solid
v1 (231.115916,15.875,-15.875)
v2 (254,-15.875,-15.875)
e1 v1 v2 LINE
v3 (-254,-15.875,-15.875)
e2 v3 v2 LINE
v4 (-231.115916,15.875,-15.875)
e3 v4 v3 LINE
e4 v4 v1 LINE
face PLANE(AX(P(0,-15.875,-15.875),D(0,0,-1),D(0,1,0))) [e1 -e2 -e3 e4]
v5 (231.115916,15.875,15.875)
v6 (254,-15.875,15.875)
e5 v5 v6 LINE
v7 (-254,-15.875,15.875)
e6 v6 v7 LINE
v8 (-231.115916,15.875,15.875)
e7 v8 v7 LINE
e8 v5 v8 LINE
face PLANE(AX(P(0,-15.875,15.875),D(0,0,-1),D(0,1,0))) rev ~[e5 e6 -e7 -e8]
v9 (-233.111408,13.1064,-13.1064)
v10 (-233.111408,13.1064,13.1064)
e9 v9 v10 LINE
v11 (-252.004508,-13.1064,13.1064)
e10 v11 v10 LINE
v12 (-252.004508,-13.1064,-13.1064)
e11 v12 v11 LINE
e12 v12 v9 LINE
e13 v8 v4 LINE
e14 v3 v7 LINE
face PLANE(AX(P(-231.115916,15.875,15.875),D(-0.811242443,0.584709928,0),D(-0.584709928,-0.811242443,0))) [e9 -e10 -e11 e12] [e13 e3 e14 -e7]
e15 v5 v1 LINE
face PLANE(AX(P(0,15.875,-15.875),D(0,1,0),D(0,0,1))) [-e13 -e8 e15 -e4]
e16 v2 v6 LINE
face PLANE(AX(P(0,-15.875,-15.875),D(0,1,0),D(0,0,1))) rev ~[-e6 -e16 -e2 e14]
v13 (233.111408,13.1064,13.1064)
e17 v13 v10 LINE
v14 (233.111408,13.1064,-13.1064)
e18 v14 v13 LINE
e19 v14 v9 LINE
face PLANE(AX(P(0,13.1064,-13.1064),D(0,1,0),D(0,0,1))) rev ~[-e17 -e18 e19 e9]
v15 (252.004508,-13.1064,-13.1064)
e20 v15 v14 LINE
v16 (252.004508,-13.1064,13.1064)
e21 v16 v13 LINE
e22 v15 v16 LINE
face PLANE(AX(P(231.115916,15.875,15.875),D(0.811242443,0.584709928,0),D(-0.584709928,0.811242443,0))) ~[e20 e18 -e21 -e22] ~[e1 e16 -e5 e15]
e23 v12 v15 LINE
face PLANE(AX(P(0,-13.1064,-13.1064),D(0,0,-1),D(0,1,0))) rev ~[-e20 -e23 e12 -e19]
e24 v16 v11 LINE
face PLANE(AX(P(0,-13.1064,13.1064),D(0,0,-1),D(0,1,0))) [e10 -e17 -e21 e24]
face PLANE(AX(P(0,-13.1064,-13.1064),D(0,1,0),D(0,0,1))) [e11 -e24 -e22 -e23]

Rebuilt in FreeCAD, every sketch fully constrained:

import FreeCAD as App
import Part
import Sketcher
from FreeCAD import Vector
Q = App.Units.Quantity

doc = App.newDocument("Part")
body = doc.addObject("PartDesign::Body", "Body")

# Sketch on YZ plane
sketch1 = body.newObject("Sketcher::SketchObject", "Sketch")
sketch1.AttachmentSupport = (doc.getObject("YZ_Plane"), [""])
sketch1.MapMode = "FlatFace"
sketch1.addGeometry(Part.LineSegment(Vector(-16, 16, 0), Vector(-16, -16, 0)), False)
sketch1.addGeometry(Part.LineSegment(Vector(-16, -16, 0), Vector(16, -16, 0)), False)
sketch1.addGeometry(Part.LineSegment(Vector(16, -16, 0), Vector(16, 16, 0)), False)
sketch1.addGeometry(Part.LineSegment(Vector(16, 16, 0), Vector(-16, 16, 0)), False)
sketch1.addGeometry(Part.LineSegment(Vector(13, -13, 0), Vector(-13, -13, 0)), False)
sketch1.addGeometry(Part.LineSegment(Vector(-13, -13, 0), Vector(-13, 13, 0)), False)
sketch1.addGeometry(Part.LineSegment(Vector(-13, 13, 0), Vector(13, 13, 0)), False)
sketch1.addGeometry(Part.LineSegment(Vector(13, 13, 0), Vector(13, -13, 0)), False)
sketch1.addConstraint(Sketcher.Constraint("Coincident", 0, 2, 1, 1))
sketch1.addConstraint(Sketcher.Constraint("Coincident", 1, 2, 2, 1))
sketch1.addConstraint(Sketcher.Constraint("Coincident", 2, 2, 3, 1))
sketch1.addConstraint(Sketcher.Constraint("Coincident", 3, 2, 0, 1))
sketch1.addConstraint(Sketcher.Constraint("Coincident", 4, 2, 5, 1))
sketch1.addConstraint(Sketcher.Constraint("Coincident", 5, 2, 6, 1))
sketch1.addConstraint(Sketcher.Constraint("Coincident", 6, 2, 7, 1))
sketch1.addConstraint(Sketcher.Constraint("Coincident", 7, 2, 4, 1))
sketch1.addConstraint(Sketcher.Constraint("Vertical", 0))
sketch1.addConstraint(Sketcher.Constraint("Horizontal", 1))
sketch1.addConstraint(Sketcher.Constraint("Vertical", 2))
sketch1.addConstraint(Sketcher.Constraint("Horizontal", 3))
sketch1.addConstraint(Sketcher.Constraint("Horizontal", 4))
sketch1.addConstraint(Sketcher.Constraint("Vertical", 5))
sketch1.addConstraint(Sketcher.Constraint("Horizontal", 6))
sketch1.addConstraint(Sketcher.Constraint("Vertical", 7))
sketch1.addConstraint(Sketcher.Constraint("Symmetric", 0, 2, 2, 2, -1, 1))
sketch1.addConstraint(Sketcher.Constraint("Symmetric", 4, 2, 6, 2, -1, 1))
sketch1.addConstraint(Sketcher.Constraint("Equal", 3, 0))
sketch1.addConstraint(Sketcher.Constraint("Equal", 6, 5))
sketch1.addConstraint(Sketcher.Constraint("DistanceX", 1, 1, 1, 2, Q("1.25 in")))
sketch1.addConstraint(Sketcher.Constraint("DistanceX", 4, 2, 4, 1, Q("1.032 in")))
pad1 = body.newObject("PartDesign::Pad", "Pad")
pad1.Profile = sketch1
pad1.Type = "TwoLengths"
pad1.Length = Q("10 in")
pad1.Length2 = Q("10 in")

# Sketch on XY plane
sketch2 = body.newObject("Sketcher::SketchObject", "Sketch001")
sketch2.AttachmentSupport = (doc.getObject("XY_Plane"), [""])
sketch2.MapMode = "FlatFace"
sketch2.AttachmentOffset = App.Placement(Vector(0, 0, 0.625 * 25.4), App.Rotation())
sketch2.addGeometry(Part.LineSegment(Vector(-254, 16, 0), Vector(-254, -16, 0)), False)
sketch2.addGeometry(Part.LineSegment(Vector(-254, -16, 0), Vector(-231, 16, 0)), False)
sketch2.addGeometry(Part.LineSegment(Vector(-231, 16, 0), Vector(-254, 16, 0)), False)
sketch2.addConstraint(Sketcher.Constraint("Coincident", 0, 2, 1, 1))
sketch2.addConstraint(Sketcher.Constraint("Coincident", 1, 2, 2, 1))
sketch2.addConstraint(Sketcher.Constraint("Coincident", 2, 2, 0, 1))
sketch2.addConstraint(Sketcher.Constraint("Vertical", 0))
sketch2.addConstraint(Sketcher.Constraint("Horizontal", 2))
sketch2.addConstraint(Sketcher.Constraint("DistanceX", 0, 2, -1, 1, Q("10 in")))
sketch2.addConstraint(Sketcher.Constraint("DistanceY", 0, 2, 0, 1, Q("1.25 in")))
sketch2.addConstraint(Sketcher.Constraint("DistanceY", 0, 2, -1, 1, Q("0.625 in")))
sketch2.addConstraint(Sketcher.Constraint("Distance", 1, 39.137499))
pocket1 = body.newObject("PartDesign::Pocket", "Pocket")
pocket1.Profile = sketch2
pocket1.Length = Q("1.25 in")
doc.recompute()

mirrored = body.newObject("PartDesign::Mirrored", "Mirrored")
mirrored.Originals = [pocket1]
mirrored.MirrorPlane = (doc.getObject("YZ_Plane"), [""])
body.Tip = mirrored

doc.recompute()
